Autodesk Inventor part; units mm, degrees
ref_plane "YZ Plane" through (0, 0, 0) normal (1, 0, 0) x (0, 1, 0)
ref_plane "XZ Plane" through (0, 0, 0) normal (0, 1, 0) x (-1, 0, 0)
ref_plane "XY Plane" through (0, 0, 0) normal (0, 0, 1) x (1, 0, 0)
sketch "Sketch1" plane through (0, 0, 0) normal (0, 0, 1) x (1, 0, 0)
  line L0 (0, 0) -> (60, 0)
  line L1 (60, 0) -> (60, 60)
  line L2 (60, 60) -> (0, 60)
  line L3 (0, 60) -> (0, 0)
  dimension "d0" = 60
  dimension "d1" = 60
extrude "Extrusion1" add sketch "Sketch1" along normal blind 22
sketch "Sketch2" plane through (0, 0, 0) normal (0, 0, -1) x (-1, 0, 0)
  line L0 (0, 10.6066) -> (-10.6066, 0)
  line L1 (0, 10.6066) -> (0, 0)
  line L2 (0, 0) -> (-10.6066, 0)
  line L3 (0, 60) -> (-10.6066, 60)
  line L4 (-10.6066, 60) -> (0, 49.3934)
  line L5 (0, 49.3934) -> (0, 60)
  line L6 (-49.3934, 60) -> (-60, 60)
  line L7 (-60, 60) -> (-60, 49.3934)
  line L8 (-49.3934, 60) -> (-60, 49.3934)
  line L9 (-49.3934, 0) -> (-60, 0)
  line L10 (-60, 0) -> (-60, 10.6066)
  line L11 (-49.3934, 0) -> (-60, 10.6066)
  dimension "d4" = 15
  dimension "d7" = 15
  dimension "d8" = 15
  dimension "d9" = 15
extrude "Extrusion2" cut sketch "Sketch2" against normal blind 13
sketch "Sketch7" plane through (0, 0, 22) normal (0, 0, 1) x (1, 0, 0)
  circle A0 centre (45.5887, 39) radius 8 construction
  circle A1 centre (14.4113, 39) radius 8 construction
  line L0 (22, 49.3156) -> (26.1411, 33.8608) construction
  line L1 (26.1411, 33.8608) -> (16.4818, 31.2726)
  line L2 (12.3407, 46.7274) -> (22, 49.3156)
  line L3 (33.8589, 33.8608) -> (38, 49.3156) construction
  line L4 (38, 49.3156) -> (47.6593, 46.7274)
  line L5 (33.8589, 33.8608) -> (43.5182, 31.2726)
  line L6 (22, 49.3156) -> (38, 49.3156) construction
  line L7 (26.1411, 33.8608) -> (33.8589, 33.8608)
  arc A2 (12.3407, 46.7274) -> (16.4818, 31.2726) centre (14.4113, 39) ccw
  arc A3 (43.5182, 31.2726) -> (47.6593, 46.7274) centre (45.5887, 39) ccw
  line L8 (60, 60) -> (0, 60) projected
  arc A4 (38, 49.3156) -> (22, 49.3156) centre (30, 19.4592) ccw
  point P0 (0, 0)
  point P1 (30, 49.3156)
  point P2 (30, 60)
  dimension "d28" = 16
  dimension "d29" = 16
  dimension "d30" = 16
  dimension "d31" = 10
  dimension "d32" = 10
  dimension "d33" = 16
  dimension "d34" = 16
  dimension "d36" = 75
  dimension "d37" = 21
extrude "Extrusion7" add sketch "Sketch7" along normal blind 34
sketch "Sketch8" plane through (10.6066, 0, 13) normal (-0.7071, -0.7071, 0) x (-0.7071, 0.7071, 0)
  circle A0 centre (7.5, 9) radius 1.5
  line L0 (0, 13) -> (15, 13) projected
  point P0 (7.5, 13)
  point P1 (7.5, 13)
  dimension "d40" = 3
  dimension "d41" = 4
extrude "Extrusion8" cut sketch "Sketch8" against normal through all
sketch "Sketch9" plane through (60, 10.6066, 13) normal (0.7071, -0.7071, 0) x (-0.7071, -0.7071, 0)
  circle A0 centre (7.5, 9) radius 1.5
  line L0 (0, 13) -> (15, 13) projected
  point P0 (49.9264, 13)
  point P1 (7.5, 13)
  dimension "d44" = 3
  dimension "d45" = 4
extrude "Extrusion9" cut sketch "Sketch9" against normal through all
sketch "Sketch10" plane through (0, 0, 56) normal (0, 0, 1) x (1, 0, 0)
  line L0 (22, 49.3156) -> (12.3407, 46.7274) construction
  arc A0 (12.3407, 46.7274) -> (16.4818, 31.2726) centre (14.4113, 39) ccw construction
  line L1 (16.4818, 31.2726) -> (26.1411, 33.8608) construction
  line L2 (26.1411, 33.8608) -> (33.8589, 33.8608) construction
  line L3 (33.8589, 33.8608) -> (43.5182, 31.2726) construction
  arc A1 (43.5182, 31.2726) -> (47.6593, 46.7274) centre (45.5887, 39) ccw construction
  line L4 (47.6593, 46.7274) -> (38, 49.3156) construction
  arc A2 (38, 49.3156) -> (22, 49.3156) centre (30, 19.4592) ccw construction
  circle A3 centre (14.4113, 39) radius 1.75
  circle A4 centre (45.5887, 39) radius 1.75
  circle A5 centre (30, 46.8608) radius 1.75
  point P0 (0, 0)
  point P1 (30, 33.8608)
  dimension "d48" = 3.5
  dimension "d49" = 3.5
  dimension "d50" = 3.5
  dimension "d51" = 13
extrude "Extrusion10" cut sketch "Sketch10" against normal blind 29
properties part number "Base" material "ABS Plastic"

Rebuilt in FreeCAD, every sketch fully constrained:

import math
import FreeCAD as App
import Part
import Sketcher

V = App.Vector
Q = App.Units.Quantity

doc = App.newDocument("Part")
body = doc.addObject("PartDesign::Body", "Body")

sketch1 = body.newObject("Sketcher::SketchObject", "Sketch")
sketch1.AttachmentSupport = (doc.getObject("XY_Plane"), [""])
sketch1.MapMode = "FlatFace"
sketch1.addGeometry(Part.LineSegment(V(0, 60, 0), V(0, 0, 0)), False)
sketch1.addGeometry(Part.LineSegment(V(0, 0, 0), V(60, 0, 0)), False)
sketch1.addGeometry(Part.LineSegment(V(60, 0, 0), V(60, 60, 0)), False)
sketch1.addGeometry(Part.LineSegment(V(60, 60, 0), V(0, 60, 0)), False)
sketch1.addConstraint(Sketcher.Constraint("Coincident", 0, 2, 1, 1))
sketch1.addConstraint(Sketcher.Constraint("Coincident", 1, 2, 2, 1))
sketch1.addConstraint(Sketcher.Constraint("Coincident", 2, 2, 3, 1))
sketch1.addConstraint(Sketcher.Constraint("Coincident", 3, 2, 0, 1))
sketch1.addConstraint(Sketcher.Constraint("Vertical", 0))
sketch1.addConstraint(Sketcher.Constraint("Horizontal", 1))
sketch1.addConstraint(Sketcher.Constraint("Vertical", 2))
sketch1.addConstraint(Sketcher.Constraint("Horizontal", 3))
sketch1.addConstraint(Sketcher.Constraint("Coincident", 0, 2, -1, 1))
sketch1.addConstraint(Sketcher.Constraint("Equal", 3, 0))
sketch1.addConstraint(Sketcher.Constraint("DistanceX", 1, 1, 1, 2, Q("60 mm")))
pad1 = body.newObject("PartDesign::Pad", "Pad")
pad1.Profile = sketch1
pad1.Length = 22

sketch2 = body.newObject("Sketcher::SketchObject", "Sketch001")
sketch2.AttachmentSupport = (doc.getObject("XY_Plane"), [""])
sketch2.MapMode = "FlatFace"
sketch2.addGeometry(Part.LineSegment(V(0, 0, 0), V(0, 10.6066, 0)), False)
sketch2.addGeometry(Part.LineSegment(V(0, 10.6066, 0), V(10.6066, 0, 0)), False)
sketch2.addGeometry(Part.LineSegment(V(10.6066, 0, 0), V(0, 0, 0)), False)
sketch2.addGeometry(Part.LineSegment(V(0, 49.3934, 0), V(0, 60, 0)), False)
sketch2.addGeometry(Part.LineSegment(V(0, 60, 0), V(10.6066, 60, 0)), False)
sketch2.addGeometry(Part.LineSegment(V(10.6066, 60, 0), V(0, 49.3934, 0)), False)
sketch2.addGeometry(Part.LineSegment(V(60, 49.3934, 0), V(49.3934, 60, 0)), False)
sketch2.addGeometry(Part.LineSegment(V(49.3934, 60, 0), V(60, 60, 0)), False)
sketch2.addGeometry(Part.LineSegment(V(60, 60, 0), V(60, 49.3934, 0)), False)
sketch2.addGeometry(Part.LineSegment(V(60, 0, 0), V(49.3934, 0, 0)), False)
sketch2.addGeometry(Part.LineSegment(V(49.3934, 0, 0), V(60, 10.6066, 0)), False)
sketch2.addGeometry(Part.LineSegment(V(60, 10.6066, 0), V(60, 0, 0)), False)
sketch2.addConstraint(Sketcher.Constraint("Coincident", 0, 2, 1, 1))
sketch2.addConstraint(Sketcher.Constraint("Coincident", 1, 2, 2, 1))
sketch2.addConstraint(Sketcher.Constraint("Coincident", 2, 2, 0, 1))
sketch2.addConstraint(Sketcher.Constraint("Coincident", 3, 2, 4, 1))
sketch2.addConstraint(Sketcher.Constraint("Coincident", 4, 2, 5, 1))
sketch2.addConstraint(Sketcher.Constraint("Coincident", 5, 2, 3, 1))
sketch2.addConstraint(Sketcher.Constraint("Coincident", 6, 2, 7, 1))
sketch2.addConstraint(Sketcher.Constraint("Coincident", 7, 2, 8, 1))
sketch2.addConstraint(Sketcher.Constraint("Coincident", 8, 2, 6, 1))
sketch2.addConstraint(Sketcher.Constraint("Coincident", 9, 2, 10, 1))
sketch2.addConstraint(Sketcher.Constraint("Coincident", 10, 2, 11, 1))
sketch2.addConstraint(Sketcher.Constraint("Coincident", 11, 2, 9, 1))
sketch2.addConstraint(Sketcher.Constraint("Vertical", 0))
sketch2.addConstraint(Sketcher.Constraint("Horizontal", 2))
sketch2.addConstraint(Sketcher.Constraint("Vertical", 3))
sketch2.addConstraint(Sketcher.Constraint("Horizontal", 4))
sketch2.addConstraint(Sketcher.Constraint("Horizontal", 7))
sketch2.addConstraint(Sketcher.Constraint("Vertical", 8))
sketch2.addConstraint(Sketcher.Constraint("Horizontal", 9))
sketch2.addConstraint(Sketcher.Constraint("Vertical", 11))
sketch2.addConstraint(Sketcher.Constraint("Coincident", 2, 2, -1, 1))
sketch2.addConstraint(Sketcher.Constraint("PointOnObject", 3, 2, -2))
sketch2.addConstraint(Sketcher.Constraint("PointOnObject", 9, 2, -1))
sketch2.addConstraint(Sketcher.Constraint("Perpendicular", 1, 5))
sketch2.addConstraint(Sketcher.Constraint("Perpendicular", 5, 6))
sketch2.addConstraint(Sketcher.Constraint("Perpendicular", 6, 10))
sketch2.addConstraint(Sketcher.Constraint("Horizontal", 4, 2, 6, 2))
sketch2.addConstraint(Sketcher.Constraint("Horizontal", 5, 2, 8, 2))
sketch2.addConstraint(Sketcher.Constraint("Horizontal", 0, 2, 10, 2))
sketch2.addConstraint(Sketcher.Constraint("Vertical", 1, 2, 4, 2))
sketch2.addConstraint(Sketcher.Constraint("Vertical", 6, 2, 9, 2))
sketch2.addConstraint(Sketcher.Constraint("Vertical", 8, 2, 10, 2))
sketch2.addConstraint(Sketcher.Constraint("Distance", 1, Q("15 mm")))
sketch2.addConstraint(Sketcher.Constraint("DistanceY", -1, 1, 3, 2, Q("60 mm")))
sketch2.addConstraint(Sketcher.Constraint("DistanceX", -1, 1, 7, 2, Q("60 mm")))
pocket1 = body.newObject("PartDesign::Pocket", "Pocket")
pocket1.Profile = sketch2
pocket1.Length = 13
pocket1.Reversed = True

sketch3 = body.newObject("Sketcher::SketchObject", "Sketch002")
sketch3.AttachmentSupport = (doc.getObject("XY_Plane"), [""])
sketch3.MapMode = "FlatFace"
sketch3.AttachmentOffset = App.Placement(V(0, 0, 22), App.Rotation())
sketch3.addGeometry(Part.LineSegment(V(16.4818, 31.2726, 0), V(26.1411, 33.8608, 0)), False)
sketch3.addGeometry(Part.LineSegment(V(26.1411, 33.8608, 0), V(33.8589, 33.8608, 0)), False)
sketch3.addGeometry(Part.LineSegment(V(33.8589, 33.8608, 0), V(43.5182, 31.2726, 0)), False)
sketch3.addGeometry(Part.ArcOfCircle(Part.Circle(V(45.5887, 39, 0), V(0, 0, 1), 8), math.radians(-104.99965), math.radians(74.999658)), False)
sketch3.addGeometry(Part.LineSegment(V(47.6593, 46.7274, 0), V(38, 49.3156, 0)), False)
sketch3.addGeometry(Part.ArcOfCircle(Part.Circle(V(30, 19.4592, 0), V(0, 0, 1), 30.90962), math.radians(74.999997), math.radians(105.000003)), False)
sketch3.addGeometry(Part.LineSegment(V(22, 49.3156, 0), V(12.3407, 46.7274, 0)), False)
sketch3.addGeometry(Part.ArcOfCircle(Part.Circle(V(14.4113, 39, 0), V(0, 0, 1), 8), math.radians(105.000342), math.radians(284.99965)), False)
sketch3.addConstraint(Sketcher.Constraint("Coincident", 0, 2, 1, 1))
sketch3.addConstraint(Sketcher.Constraint("Coincident", 1, 2, 2, 1))
sketch3.addConstraint(Sketcher.Constraint("Tangent", 2, 2, 3, 1))
sketch3.addConstraint(Sketcher.Constraint("Tangent", 3, 2, 4, 1))
sketch3.addConstraint(Sketcher.Constraint("Tangent", 4, 2, 5, 1))
sketch3.addConstraint(Sketcher.Constraint("Tangent", 5, 2, 6, 1))
sketch3.addConstraint(Sketcher.Constraint("Tangent", 6, 2, 7, 1))
sketch3.addConstraint(Sketcher.Constraint("Tangent", 7, 2, 0, 1))
sketch3.addConstraint(Sketcher.Constraint("Horizontal", 1))
sketch3.addConstraint(Sketcher.Constraint("Equal", 3, 7))
sketch3.addConstraint(Sketcher.Constraint("Parallel", 2, 4))
sketch3.addConstraint(Sketcher.Constraint("Parallel", 0, 6))
sketch3.addConstraint(Sketcher.Constraint("Horizontal", 3, 3, 7, 3))
sketch3.addConstraint(Sketcher.Constraint("Horizontal", 4, 2, 5, 2))
sketch3.addConstraint(Sketcher.Constraint("Equal", 2, 4))
sketch3.addConstraint(Sketcher.Constraint("Radius", 3, Q("8 mm")))
sketch3.addConstraint(Sketcher.Constraint("Distance", 0, Q("10 mm")))
sketch3.addConstraint(Sketcher.Constraint("DistanceX", 5, 2, 4, 2, Q("16 mm")))
sketch3.addConstraint(Sketcher.Constraint("Angle", 0, Q("15 deg")))
sketch3.addConstraint(Sketcher.Constraint("DistanceY", -1, 1, 3, 3, Q("39 mm")))
sketch3.addConstraint(Sketcher.Constraint("DistanceX", -1, 1, 5, 3, Q("30 mm")))
pad2 = body.newObject("PartDesign::Pad", "Pad001")
pad2.Profile = sketch3
pad2.Length = 34

sketch4 = body.newObject("Sketcher::SketchObject", "Sketch003")
sketch4.Placement = App.Placement(V(10.6066, 0, 13), App.Rotation(V(-0.707106781, 0.707106781, 0), V(0, 0, -0.999999999), V(-0.707106781, -0.707106781, 0), "ZXY"))
sketch4.addGeometry(Part.Circle(V(7.5, 9, 0), V(0, 0, 1), 1.5), False)
sketch4.addConstraint(Sketcher.Constraint("Diameter", 0, Q("3 mm")))
sketch4.addConstraint(Sketcher.Constraint("DistanceY", -1, 1, 0, 3, Q("9 mm")))
sketch4.addConstraint(Sketcher.Constraint("DistanceX", -1, 1, 0, 3, Q("7.5 mm")))
pocket2 = body.newObject("PartDesign::Pocket", "Pocket001")
pocket2.Profile = sketch4
pocket2.Type = "ThroughAll"

sketch5 = body.newObject("Sketcher::SketchObject", "Sketch004")
sketch5.Placement = App.Placement(V(60, 10.6066, 13), App.Rotation(V(-0.707106781, -0.707106781, 0), V(0, 0, -0.999999999), V(0.707106781, -0.707106781, 0), "ZXY"))
sketch5.addGeometry(Part.Circle(V(7.5, 9, 0), V(0, 0, 1), 1.5), False)
sketch5.addConstraint(Sketcher.Constraint("Diameter", 0, Q("3 mm")))
sketch5.addConstraint(Sketcher.Constraint("DistanceY", -1, 1, 0, 3, Q("9 mm")))
sketch5.addConstraint(Sketcher.Constraint("DistanceX", -1, 1, 0, 3, Q("7.5 mm")))
pocket3 = body.newObject("PartDesign::Pocket", "Pocket002")
pocket3.Profile = sketch5
pocket3.Type = "ThroughAll"

sketch6 = body.newObject("Sketcher::SketchObject", "Sketch005")
sketch6.AttachmentSupport = (doc.getObject("XY_Plane"), [""])
sketch6.MapMode = "FlatFace"
sketch6.AttachmentOffset = App.Placement(V(0, 0, 56), App.Rotation())
sketch6.addGeometry(Part.Circle(V(14.4113, 39, 0), V(0, 0, 1), 1.75), False)
sketch6.addGeometry(Part.Circle(V(45.5887, 39, 0), V(0, 0, 1), 1.75), False)
sketch6.addGeometry(Part.Circle(V(30, 46.8608, 0), V(0, 0, 1), 1.75), False)
sketch6.addConstraint(Sketcher.Constraint("Equal", 0, 1))
sketch6.addConstraint(Sketcher.Constraint("Equal", 1, 2))
sketch6.addConstraint(Sketcher.Constraint("Horizontal", 0, 3, 1, 3))
sketch6.addConstraint(Sketcher.Constraint("Diameter", 0, Q("3.5 mm")))
sketch6.addConstraint(Sketcher.Constraint("DistanceY", -1, 1, 0, 3, Q("39 mm")))
sketch6.addConstraint(Sketcher.Constraint("DistanceX", -1, 1, 2, 3, Q("30 mm")))
sketch6.addConstraint(Sketcher.Constraint("DistanceX", -1, 1, 0, 3, Q("14.4113 mm")))
sketch6.addConstraint(Sketcher.Constraint("DistanceX", -1, 1, 1, 3, Q("45.5887 mm")))
sketch6.addConstraint(Sketcher.Constraint("DistanceY", -1, 1, 2, 3, Q("46.8608 mm")))
pocket4 = body.newObject("PartDesign::Pocket", "Pocket003")
pocket4.Profile = sketch6
pocket4.Length = 29

doc.recompute()
